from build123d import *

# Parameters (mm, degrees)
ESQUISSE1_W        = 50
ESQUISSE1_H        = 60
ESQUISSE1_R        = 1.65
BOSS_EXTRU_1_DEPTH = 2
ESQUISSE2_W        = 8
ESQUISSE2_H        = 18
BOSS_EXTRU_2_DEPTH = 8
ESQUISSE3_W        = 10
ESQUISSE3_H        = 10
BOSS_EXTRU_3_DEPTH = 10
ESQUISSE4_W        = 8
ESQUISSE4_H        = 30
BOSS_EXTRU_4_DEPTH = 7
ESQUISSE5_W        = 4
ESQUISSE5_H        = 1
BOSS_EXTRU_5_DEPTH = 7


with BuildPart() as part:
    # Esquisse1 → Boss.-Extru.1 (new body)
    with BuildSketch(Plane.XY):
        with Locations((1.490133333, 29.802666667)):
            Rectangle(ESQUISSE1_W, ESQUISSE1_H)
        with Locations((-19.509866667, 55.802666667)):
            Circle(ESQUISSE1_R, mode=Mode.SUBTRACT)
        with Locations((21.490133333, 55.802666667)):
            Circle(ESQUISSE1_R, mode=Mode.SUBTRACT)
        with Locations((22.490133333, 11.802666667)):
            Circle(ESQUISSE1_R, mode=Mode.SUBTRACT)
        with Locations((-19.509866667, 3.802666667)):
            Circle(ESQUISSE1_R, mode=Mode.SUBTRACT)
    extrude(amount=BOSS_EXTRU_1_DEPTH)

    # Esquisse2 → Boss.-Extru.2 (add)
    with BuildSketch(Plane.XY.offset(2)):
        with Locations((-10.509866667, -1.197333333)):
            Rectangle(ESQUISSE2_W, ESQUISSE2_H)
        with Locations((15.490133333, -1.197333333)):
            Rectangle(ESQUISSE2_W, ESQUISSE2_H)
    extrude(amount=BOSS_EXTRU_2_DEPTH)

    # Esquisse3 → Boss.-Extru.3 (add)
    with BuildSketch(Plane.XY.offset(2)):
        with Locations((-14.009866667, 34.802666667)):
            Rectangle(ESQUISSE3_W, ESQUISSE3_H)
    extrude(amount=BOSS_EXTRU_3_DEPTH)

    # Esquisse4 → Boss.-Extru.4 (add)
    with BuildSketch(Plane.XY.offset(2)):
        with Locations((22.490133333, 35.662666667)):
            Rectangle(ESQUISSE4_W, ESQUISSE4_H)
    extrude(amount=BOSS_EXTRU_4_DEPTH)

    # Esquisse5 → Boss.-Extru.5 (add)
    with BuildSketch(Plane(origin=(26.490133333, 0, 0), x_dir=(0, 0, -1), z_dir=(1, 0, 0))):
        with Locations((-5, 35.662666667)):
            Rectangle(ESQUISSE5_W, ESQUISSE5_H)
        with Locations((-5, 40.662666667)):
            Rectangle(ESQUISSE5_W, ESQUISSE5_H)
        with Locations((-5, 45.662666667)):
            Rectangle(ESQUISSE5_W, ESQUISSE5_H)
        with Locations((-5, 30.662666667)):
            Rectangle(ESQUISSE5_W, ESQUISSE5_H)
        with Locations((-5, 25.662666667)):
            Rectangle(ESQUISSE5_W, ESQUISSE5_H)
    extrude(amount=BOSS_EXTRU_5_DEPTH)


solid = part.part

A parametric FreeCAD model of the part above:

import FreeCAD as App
import Part
import Sketcher

V = App.Vector
Q = App.Units.Quantity


def add_polygon(sketch, points):
    """Adds a closed chain of lines whose ends are joined by coincident constraints."""
    first, n = sketch.GeometryCount, len(points)
    for a, b in zip(points, points[1:] + points[:1]):
        sketch.addGeometry(Part.LineSegment(App.Vector(*a, 0), App.Vector(*b, 0)), False)
    for i in range(n):
        sketch.addConstraint(Sketcher.Constraint("Coincident", first + i, 2, first + (i + 1) % n, 1))

doc = App.newDocument("Part")
body = doc.addObject("PartDesign::Body", "Body")

# Sketch on XY plane
sketch1 = doc.addObject("Sketcher::SketchObject", "Sketch")
body.addObject(sketch1)
sketch1.AttachmentSupport = (doc.XY_Plane, [""])
sketch1.MapMode = "FlatFace"
add_polygon(sketch1, [(-23.509867, 59.802667), (-23.509867, -0.197333), (26.490133, -0.197333), (26.490133, 59.802667)])  # lines 0-3
sketch1.addGeometry(Part.Circle(V(-19.509867, 3.802667, 0), V(0, 0, 1), 1.65), False)  # 4
sketch1.addGeometry(Part.Circle(V(22.490133, 11.802667, 0), V(0, 0, 1), 1.65), False)  # 5
sketch1.addGeometry(Part.Circle(V(-19.509867, 55.802667, 0), V(0, 0, 1), 1.65), False)  # 6
sketch1.addGeometry(Part.Circle(V(21.490133, 55.802667, 0), V(0, 0, 1), 1.65), False)  # 7
sketch1.addConstraint(Sketcher.Constraint("Vertical", 0))
sketch1.addConstraint(Sketcher.Constraint("Horizontal", 1))
sketch1.addConstraint(Sketcher.Constraint("Vertical", 2))
sketch1.addConstraint(Sketcher.Constraint("Horizontal", 3))
sketch1.addConstraint(Sketcher.Constraint("Equal", 4, 5))
sketch1.addConstraint(Sketcher.Constraint("Equal", 5, 6))
sketch1.addConstraint(Sketcher.Constraint("Equal", 6, 7))
sketch1.addConstraint(Sketcher.Constraint("Horizontal", 6, 3, 7, 3))
sketch1.addConstraint(Sketcher.Constraint("Vertical", 4, 3, 6, 3))
sketch1.addConstraint(Sketcher.Constraint("Diameter", 4, Q("3.3 mm")))
sketch1.addConstraint(Sketcher.Constraint("DistanceX", 1, 1, 1, 2, Q("50 mm")))
sketch1.addConstraint(Sketcher.Constraint("DistanceY", 0, 2, 0, 1, Q("60 mm")))
sketch1.addConstraint(Sketcher.Constraint("DistanceX", 4, 3, 5, 3, Q("42 mm")))
sketch1.addConstraint(Sketcher.Constraint("DistanceY", 4, 3, 5, 3, Q("8 mm")))
sketch1.addConstraint(Sketcher.Constraint("DistanceY", 4, 3, 6, 3, Q("52 mm")))
sketch1.addConstraint(Sketcher.Constraint("DistanceX", 6, 3, 7, 3, Q("41 mm")))
sketch1.addConstraint(Sketcher.Constraint("DistanceX", 0, 2, 4, 3, Q("4 mm")))
sketch1.addConstraint(Sketcher.Constraint("DistanceY", 0, 2, 4, 3, Q("4 mm")))
sketch1.addConstraint(Sketcher.Constraint("DistanceX", 4, 3, -1, 1, Q("19.509867 mm")))
sketch1.addConstraint(Sketcher.Constraint("DistanceY", -1, 1, 4, 3, Q("3.802667 mm")))
pad1 = doc.addObject("PartDesign::Pad", "Pad")
body.addObject(pad1)
pad1.Profile = sketch1
pad1.Length = 2

# Sketch on XY plane
sketch2 = doc.addObject("Sketcher::SketchObject", "Sketch001")
body.addObject(sketch2)
sketch2.AttachmentSupport = (doc.XY_Plane, [""])
sketch2.MapMode = "FlatFace"
sketch2.AttachmentOffset = App.Placement(V(0, 0, 2), App.Rotation())
add_polygon(sketch2, [(-14.509867, 7.802667), (-14.509867, -10.197333), (-6.509867, -10.197333), (-6.509867, 7.802667)])  # lines 0-3
add_polygon(sketch2, [(11.490133, 7.802667), (11.490133, -10.197333), (19.490133, -10.197333), (19.490133, 7.802667)])  # lines 4-7
sketch2.addConstraint(Sketcher.Constraint("Vertical", 0))
sketch2.addConstraint(Sketcher.Constraint("Horizontal", 1))
sketch2.addConstraint(Sketcher.Constraint("Vertical", 2))
sketch2.addConstraint(Sketcher.Constraint("Horizontal", 3))
sketch2.addConstraint(Sketcher.Constraint("Vertical", 4))
sketch2.addConstraint(Sketcher.Constraint("Horizontal", 5))
sketch2.addConstraint(Sketcher.Constraint("Vertical", 6))
sketch2.addConstraint(Sketcher.Constraint("Horizontal", 7))
sketch2.addConstraint(Sketcher.Constraint("Horizontal", 1, 2, 4, 2))
sketch2.addConstraint(Sketcher.Constraint("Horizontal", 3, 2, 6, 2))
sketch2.addConstraint(Sketcher.Constraint("Equal", 3, 5))
sketch2.addConstraint(Sketcher.Constraint("DistanceX", 1, 1, 1, 2, Q("8 mm")))
sketch2.addConstraint(Sketcher.Constraint("DistanceY", 0, 2, 0, 1, Q("18 mm")))
sketch2.addConstraint(Sketcher.Constraint("DistanceX", 1, 2, 4, 2, Q("18 mm")))
sketch2.addConstraint(Sketcher.Constraint("DistanceX", 0, 2, -1, 1, Q("14.509867 mm")))
sketch2.addConstraint(Sketcher.Constraint("DistanceY", 0, 2, -1, 1, Q("10.197333 mm")))
pad2 = doc.addObject("PartDesign::Pad", "Pad001")
body.addObject(pad2)
pad2.Profile = sketch2
pad2.Length = 8

# Sketch on XY plane
sketch3 = doc.addObject("Sketcher::SketchObject", "Sketch002")
body.addObject(sketch3)
sketch3.AttachmentSupport = (doc.XY_Plane, [""])
sketch3.MapMode = "FlatFace"
sketch3.AttachmentOffset = App.Placement(V(0, 0, 2), App.Rotation())
add_polygon(sketch3, [(-19.009867, 39.802667), (-19.009867, 29.802667), (-9.009867, 29.802667), (-9.009867, 39.802667)])  # lines 0-3
sketch3.addConstraint(Sketcher.Constraint("Vertical", 0))
sketch3.addConstraint(Sketcher.Constraint("Horizontal", 1))
sketch3.addConstraint(Sketcher.Constraint("Vertical", 2))
sketch3.addConstraint(Sketcher.Constraint("Horizontal", 3))
sketch3.addConstraint(Sketcher.Constraint("Equal", 3, 0))
sketch3.addConstraint(Sketcher.Constraint("DistanceX", 1, 1, 1, 2, Q("10 mm")))
sketch3.addConstraint(Sketcher.Constraint("DistanceX", 0, 2, -1, 1, Q("19.009867 mm")))
sketch3.addConstraint(Sketcher.Constraint("DistanceY", -1, 1, 0, 2, Q("29.802667 mm")))
pad3 = doc.addObject("PartDesign::Pad", "Pad002")
body.addObject(pad3)
pad3.Profile = sketch3
pad3.Length = 10

# Sketch on XY plane
sketch4 = doc.addObject("Sketcher::SketchObject", "Sketch003")
body.addObject(sketch4)
sketch4.AttachmentSupport = (doc.XY_Plane, [""])
sketch4.MapMode = "FlatFace"
sketch4.AttachmentOffset = App.Placement(V(0, 0, 2), App.Rotation())
add_polygon(sketch4, [(18.490133, 50.662667), (18.490133, 20.662667), (26.490133, 20.662667), (26.490133, 50.662667)])  # lines 0-3
sketch4.addConstraint(Sketcher.Constraint("Vertical", 0))
sketch4.addConstraint(Sketcher.Constraint("Horizontal", 1))
sketch4.addConstraint(Sketcher.Constraint("Vertical", 2))
sketch4.addConstraint(Sketcher.Constraint("Horizontal", 3))
sketch4.addConstraint(Sketcher.Constraint("DistanceX", 1, 1, 1, 2, Q("8 mm")))
sketch4.addConstraint(Sketcher.Constraint("DistanceY", 0, 2, 0, 1, Q("30 mm")))
sketch4.addConstraint(Sketcher.Constraint("DistanceX", -1, 1, 0, 2, Q("18.490133 mm")))
sketch4.addConstraint(Sketcher.Constraint("DistanceY", -1, 1, 0, 2, Q("20.662667 mm")))
pad4 = doc.addObject("PartDesign::Pad", "Pad003")
body.addObject(pad4)
pad4.Profile = sketch4
pad4.Length = 7

# Sketch on YZ plane
sketch5 = doc.addObject("Sketcher::SketchObject", "Sketch004")
body.addObject(sketch5)
sketch5.AttachmentSupport = (doc.YZ_Plane, [""])
sketch5.MapMode = "FlatFace"
sketch5.AttachmentOffset = App.Placement(V(0, 0, 26.490133), App.Rotation())
add_polygon(sketch5, [(36.162667, 7), (35.162667, 7), (35.162667, 3), (36.162667, 3)])  # lines 0-3
add_polygon(sketch5, [(41.162667, 7), (40.162667, 7), (40.162667, 3), (41.162667, 3)])  # lines 4-7
add_polygon(sketch5, [(46.162667, 7), (45.162667, 7), (45.162667, 3), (46.162667, 3)])  # lines 8-11
add_polygon(sketch5, [(31.162667, 7), (30.162667, 7), (30.162667, 3), (31.162667, 3)])  # lines 12-15
add_polygon(sketch5, [(26.162667, 7), (25.162667, 7), (25.162667, 3), (26.162667, 3)])  # lines 16-19
sketch5.addConstraint(Sketcher.Constraint("Horizontal", 0))
sketch5.addConstraint(Sketcher.Constraint("Vertical", 1))
sketch5.addConstraint(Sketcher.Constraint("Horizontal", 2))
sketch5.addConstraint(Sketcher.Constraint("Vertical", 3))
sketch5.addConstraint(Sketcher.Constraint("Horizontal", 4))
sketch5.addConstraint(Sketcher.Constraint("Vertical", 5))
sketch5.addConstraint(Sketcher.Constraint("Horizontal", 6))
sketch5.addConstraint(Sketcher.Constraint("Vertical", 7))
sketch5.addConstraint(Sketcher.Constraint("Horizontal", 8))
sketch5.addConstraint(Sketcher.Constraint("Vertical", 9))
sketch5.addConstraint(Sketcher.Constraint("Horizontal", 10))
sketch5.addConstraint(Sketcher.Constraint("Vertical", 11))
sketch5.addConstraint(Sketcher.Constraint("Horizontal", 12))
sketch5.addConstraint(Sketcher.Constraint("Vertical", 13))
sketch5.addConstraint(Sketcher.Constraint("Horizontal", 14))
sketch5.addConstraint(Sketcher.Constraint("Vertical", 15))
sketch5.addConstraint(Sketcher.Constraint("Horizontal", 16))
sketch5.addConstraint(Sketcher.Constraint("Vertical", 17))
sketch5.addConstraint(Sketcher.Constraint("Horizontal", 18))
sketch5.addConstraint(Sketcher.Constraint("Vertical", 19))
sketch5.addConstraint(Sketcher.Constraint("Horizontal", 3, 2, 4, 2))
sketch5.addConstraint(Sketcher.Constraint("Horizontal", 2, 2, 5, 2))
sketch5.addConstraint(Sketcher.Constraint("Horizontal", 7, 2, 8, 2))
sketch5.addConstraint(Sketcher.Constraint("Horizontal", 6, 2, 9, 2))
sketch5.addConstraint(Sketcher.Constraint("Horizontal", 11, 2, 12, 2))
sketch5.addConstraint(Sketcher.Constraint("Horizontal", 10, 2, 13, 2))
sketch5.addConstraint(Sketcher.Constraint("Horizontal", 15, 2, 16, 2))
sketch5.addConstraint(Sketcher.Constraint("Horizontal", 14, 2, 17, 2))
sketch5.addConstraint(Sketcher.Constraint("Equal", 2, 4))
sketch5.addConstraint(Sketcher.Constraint("Equal", 6, 8))
sketch5.addConstraint(Sketcher.Constraint("Equal", 10, 12))
sketch5.addConstraint(Sketcher.Constraint("Equal", 14, 16))
sketch5.addConstraint(Sketcher.Constraint("DistanceX", 0, 2, 0, 1, Q("1 mm")))
sketch5.addConstraint(Sketcher.Constraint("DistanceY", 1, 2, 1, 1, Q("4 mm")))
sketch5.addConstraint(Sketcher.Constraint("DistanceY", -1, 1, 0, 2, Q("7 mm")))
sketch5.addConstraint(Sketcher.Constraint("DistanceX", 3, 2, 4, 2, Q("4 mm")))
sketch5.addConstraint(Sketcher.Constraint("DistanceX", 7, 2, 8, 2, Q("4 mm")))
sketch5.addConstraint(Sketcher.Constraint("DistanceX", 12, 2, 0, 2, Q("5 mm")))
sketch5.addConstraint(Sketcher.Constraint("DistanceX", 16, 2, 12, 2, Q("5 mm")))
sketch5.addConstraint(Sketcher.Constraint("DistanceX", -1, 1, 0, 2, Q("35.162667 mm")))
pad5 = doc.addObject("PartDesign::Pad", "Pad004")
body.addObject(pad5)
pad5.Profile = sketch5
pad5.Length = 7

doc.recompute()
